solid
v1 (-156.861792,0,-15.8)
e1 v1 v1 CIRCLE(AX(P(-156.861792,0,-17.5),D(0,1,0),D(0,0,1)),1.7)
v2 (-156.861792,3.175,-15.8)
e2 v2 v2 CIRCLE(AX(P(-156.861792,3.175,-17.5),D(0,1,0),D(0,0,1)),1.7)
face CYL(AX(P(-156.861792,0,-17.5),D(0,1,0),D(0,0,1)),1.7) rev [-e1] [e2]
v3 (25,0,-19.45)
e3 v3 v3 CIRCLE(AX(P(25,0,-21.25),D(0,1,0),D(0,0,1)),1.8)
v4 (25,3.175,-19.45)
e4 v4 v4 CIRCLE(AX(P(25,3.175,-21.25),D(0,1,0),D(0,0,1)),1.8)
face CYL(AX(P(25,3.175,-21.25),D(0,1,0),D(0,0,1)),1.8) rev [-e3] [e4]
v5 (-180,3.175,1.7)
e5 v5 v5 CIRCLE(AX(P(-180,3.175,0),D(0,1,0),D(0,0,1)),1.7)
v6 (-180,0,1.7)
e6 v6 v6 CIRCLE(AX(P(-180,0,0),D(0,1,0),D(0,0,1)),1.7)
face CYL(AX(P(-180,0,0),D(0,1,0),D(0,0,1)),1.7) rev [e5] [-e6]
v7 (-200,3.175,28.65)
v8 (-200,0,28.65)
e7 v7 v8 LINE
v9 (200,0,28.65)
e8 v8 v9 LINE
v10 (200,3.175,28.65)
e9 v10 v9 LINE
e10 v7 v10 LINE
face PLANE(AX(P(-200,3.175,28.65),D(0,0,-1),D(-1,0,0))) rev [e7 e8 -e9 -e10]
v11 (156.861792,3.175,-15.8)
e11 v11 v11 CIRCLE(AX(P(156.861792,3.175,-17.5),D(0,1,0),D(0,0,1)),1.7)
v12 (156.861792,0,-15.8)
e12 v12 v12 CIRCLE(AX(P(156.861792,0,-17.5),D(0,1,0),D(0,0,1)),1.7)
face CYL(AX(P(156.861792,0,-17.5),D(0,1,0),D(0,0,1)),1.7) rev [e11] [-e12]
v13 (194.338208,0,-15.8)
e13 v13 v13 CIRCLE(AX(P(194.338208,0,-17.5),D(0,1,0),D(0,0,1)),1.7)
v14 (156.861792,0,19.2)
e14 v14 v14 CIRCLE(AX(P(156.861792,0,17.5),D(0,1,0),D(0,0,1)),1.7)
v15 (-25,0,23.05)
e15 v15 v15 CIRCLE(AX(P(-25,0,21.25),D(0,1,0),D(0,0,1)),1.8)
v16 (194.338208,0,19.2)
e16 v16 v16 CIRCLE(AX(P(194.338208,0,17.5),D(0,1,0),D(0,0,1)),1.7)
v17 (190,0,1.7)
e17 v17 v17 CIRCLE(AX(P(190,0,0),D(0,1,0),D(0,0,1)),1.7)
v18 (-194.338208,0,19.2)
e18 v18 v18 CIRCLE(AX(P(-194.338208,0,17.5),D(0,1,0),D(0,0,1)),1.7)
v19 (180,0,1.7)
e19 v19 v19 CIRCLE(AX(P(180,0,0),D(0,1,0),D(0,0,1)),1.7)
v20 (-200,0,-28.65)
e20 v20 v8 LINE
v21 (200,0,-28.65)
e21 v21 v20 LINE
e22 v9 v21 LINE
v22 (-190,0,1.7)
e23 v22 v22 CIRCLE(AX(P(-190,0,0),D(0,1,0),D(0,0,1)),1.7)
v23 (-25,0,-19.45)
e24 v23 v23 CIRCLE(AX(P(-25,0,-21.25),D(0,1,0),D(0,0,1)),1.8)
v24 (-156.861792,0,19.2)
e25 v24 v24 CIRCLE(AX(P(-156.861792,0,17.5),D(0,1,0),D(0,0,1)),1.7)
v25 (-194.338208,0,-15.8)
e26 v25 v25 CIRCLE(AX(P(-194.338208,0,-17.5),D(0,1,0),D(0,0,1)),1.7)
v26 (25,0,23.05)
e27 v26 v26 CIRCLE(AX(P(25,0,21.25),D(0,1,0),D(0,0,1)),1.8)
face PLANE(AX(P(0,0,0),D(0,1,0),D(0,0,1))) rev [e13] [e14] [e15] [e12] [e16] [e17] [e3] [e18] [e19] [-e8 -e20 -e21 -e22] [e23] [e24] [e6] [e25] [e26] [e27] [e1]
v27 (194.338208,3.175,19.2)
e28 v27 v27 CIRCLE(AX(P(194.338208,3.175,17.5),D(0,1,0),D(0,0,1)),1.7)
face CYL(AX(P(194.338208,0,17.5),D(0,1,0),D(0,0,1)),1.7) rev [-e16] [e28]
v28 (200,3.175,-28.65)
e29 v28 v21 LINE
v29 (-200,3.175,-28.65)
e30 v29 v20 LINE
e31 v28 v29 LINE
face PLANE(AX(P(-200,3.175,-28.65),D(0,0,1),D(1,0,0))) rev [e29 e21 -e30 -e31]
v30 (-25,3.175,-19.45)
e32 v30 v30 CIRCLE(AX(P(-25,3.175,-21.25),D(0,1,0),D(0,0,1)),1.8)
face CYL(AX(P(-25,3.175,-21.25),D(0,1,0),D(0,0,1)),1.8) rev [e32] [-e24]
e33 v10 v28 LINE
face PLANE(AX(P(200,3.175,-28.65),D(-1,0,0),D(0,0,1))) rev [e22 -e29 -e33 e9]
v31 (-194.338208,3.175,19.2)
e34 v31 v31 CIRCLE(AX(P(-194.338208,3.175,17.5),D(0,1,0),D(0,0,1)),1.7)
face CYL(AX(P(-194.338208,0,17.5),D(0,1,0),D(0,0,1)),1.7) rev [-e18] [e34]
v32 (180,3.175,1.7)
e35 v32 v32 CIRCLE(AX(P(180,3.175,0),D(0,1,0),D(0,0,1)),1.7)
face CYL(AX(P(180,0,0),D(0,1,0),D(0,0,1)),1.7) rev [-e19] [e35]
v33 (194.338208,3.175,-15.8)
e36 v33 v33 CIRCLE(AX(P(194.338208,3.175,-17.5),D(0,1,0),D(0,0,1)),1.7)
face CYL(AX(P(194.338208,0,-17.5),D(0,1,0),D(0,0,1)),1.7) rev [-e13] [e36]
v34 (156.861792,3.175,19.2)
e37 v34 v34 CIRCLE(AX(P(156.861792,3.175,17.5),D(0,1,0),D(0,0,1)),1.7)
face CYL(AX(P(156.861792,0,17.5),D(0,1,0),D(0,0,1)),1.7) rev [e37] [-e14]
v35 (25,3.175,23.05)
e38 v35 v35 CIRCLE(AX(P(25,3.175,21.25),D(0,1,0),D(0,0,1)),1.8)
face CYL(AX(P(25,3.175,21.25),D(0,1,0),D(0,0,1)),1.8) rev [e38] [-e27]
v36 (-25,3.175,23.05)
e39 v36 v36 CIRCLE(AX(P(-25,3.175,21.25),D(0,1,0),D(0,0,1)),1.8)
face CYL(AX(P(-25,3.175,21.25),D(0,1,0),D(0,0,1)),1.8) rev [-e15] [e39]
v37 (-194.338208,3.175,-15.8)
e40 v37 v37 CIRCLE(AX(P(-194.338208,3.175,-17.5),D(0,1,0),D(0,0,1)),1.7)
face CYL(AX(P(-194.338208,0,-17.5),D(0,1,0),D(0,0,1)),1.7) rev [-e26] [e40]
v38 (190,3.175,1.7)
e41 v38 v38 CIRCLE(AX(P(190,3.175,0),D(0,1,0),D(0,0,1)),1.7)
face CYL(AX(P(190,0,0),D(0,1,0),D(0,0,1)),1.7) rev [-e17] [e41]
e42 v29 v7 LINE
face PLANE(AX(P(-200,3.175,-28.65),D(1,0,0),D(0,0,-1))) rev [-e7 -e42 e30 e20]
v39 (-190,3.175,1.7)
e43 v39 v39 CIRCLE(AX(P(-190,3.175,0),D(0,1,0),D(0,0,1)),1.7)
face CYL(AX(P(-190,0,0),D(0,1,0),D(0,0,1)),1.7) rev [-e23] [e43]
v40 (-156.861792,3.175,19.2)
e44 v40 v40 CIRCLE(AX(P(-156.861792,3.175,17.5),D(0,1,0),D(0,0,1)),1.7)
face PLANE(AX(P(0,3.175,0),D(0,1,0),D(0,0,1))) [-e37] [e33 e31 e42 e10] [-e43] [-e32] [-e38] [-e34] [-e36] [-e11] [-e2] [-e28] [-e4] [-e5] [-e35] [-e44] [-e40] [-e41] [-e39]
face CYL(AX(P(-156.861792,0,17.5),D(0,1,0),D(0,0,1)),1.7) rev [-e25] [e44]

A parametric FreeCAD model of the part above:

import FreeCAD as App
import Part
import Sketcher

V = App.Vector

doc = App.newDocument("Part")
params = doc.addObject("Spreadsheet::Sheet", "Params")
for row, (alias, value) in enumerate([
    ("sketch1_width", "400 mm"),
    ("sketch1_height", "57.3 mm"),
    ("pad1_length", "3.175 mm"),
    ("sketch2_diameter", "3.4 mm"),
    ("sketch3_diameter", "3.6 mm"),
    ("hole_diameter", "3.6 mm"),
    ("hole_depth", "3.918451 mm"),
], start=1):
    params.set(f"A{row}", alias)
    params.set(f"B{row}", "=" + value)
    params.setAlias(f"B{row}", alias)

body = doc.addObject("PartDesign::Body", "Body")

# Sketch on XZ plane
sketch1 = doc.addObject("Sketcher::SketchObject", "Sketch")
body.addObject(sketch1)
sketch1.AttachmentSupport = (doc.XZ_Plane, [""])
sketch1.MapMode = "FlatFace"
sketch1.addGeometry([
    Part.LineSegment(V(-200, -29, 0), V(-200, 29, 0)),
    Part.LineSegment(V(-200, 29, 0), V(200, 29, 0)),
    Part.LineSegment(V(200, 29, 0), V(200, -29, 0)),
    Part.LineSegment(V(200, -29, 0), V(-200, -29, 0)),
], False)
sketch1.addConstraint([
    Sketcher.Constraint("Coincident", 0, 2, 1, 1),
    Sketcher.Constraint("Coincident", 1, 2, 2, 1),
    Sketcher.Constraint("Coincident", 2, 2, 3, 1),
    Sketcher.Constraint("Coincident", 3, 2, 0, 1),
    Sketcher.Constraint("Vertical", 0),
    Sketcher.Constraint("Horizontal", 1),
    Sketcher.Constraint("Vertical", 2),
    Sketcher.Constraint("Horizontal", 3),
    Sketcher.Constraint("Symmetric", 0, 2, 2, 2, -1, 1),
    Sketcher.Constraint("DistanceX", 1, 1, 1, 2, 400.0),
    Sketcher.Constraint("DistanceY", 0, 1, 0, 2, 57.3),
])
sketch1.setExpression("Constraints[9]", "Params.sketch1_width")
sketch1.setExpression("Constraints[10]", "Params.sketch1_height")
pad1 = doc.addObject("PartDesign::Pad", "Pad")
body.addObject(pad1)
pad1.Profile = sketch1
pad1.setExpression("Length", "Params.pad1_length")
pad1.Reversed = True

# Sketch on XZ plane
sketch2 = doc.addObject("Sketcher::SketchObject", "Sketch001")
body.addObject(sketch2)
sketch2.AttachmentSupport = (doc.XZ_Plane, [""])
sketch2.MapMode = "FlatFace"
sketch2.AttachmentOffset = App.Placement(V(0, 0, -3.175), App.Rotation())
sketch2.addGeometry([
    Part.Circle(V(-194.3, 17.5, 0), V(0, 0, 1), 1.7),  # 0
    Part.Circle(V(-194.3, -17.5, 0), V(0, 0, 1), 1.7),  # 1
    Part.Circle(V(-190, 0, 0), V(0, 0, 1), 1.7),  # 2
    Part.Circle(V(-180, 0, 0), V(0, 0, 1), 1.7),  # 3
    Part.Circle(V(-156.9, 17.5, 0), V(0, 0, 1), 1.7),  # 4
    Part.Circle(V(-156.9, -17.5, 0), V(0, 0, 1), 1.7),  # 5
    Part.Circle(V(156.9, -17.5, 0), V(0, 0, 1), 1.7),  # 6
    Part.Circle(V(156.9, 17.5, 0), V(0, 0, 1), 1.7),  # 7
    Part.Circle(V(194.3, 17.5, 0), V(0, 0, 1), 1.7),  # 8
    Part.Circle(V(180, 0, 0), V(0, 0, 1), 1.7),  # 9
    Part.Circle(V(190, 0, 0), V(0, 0, 1), 1.7),  # 10
    Part.Circle(V(194.3, -17.5, 0), V(0, 0, 1), 1.7),  # 11
], False)
sketch2.addConstraint([
    Sketcher.Constraint("Equal", 0, 1),
    Sketcher.Constraint("Equal", 1, 2),
    Sketcher.Constraint("Equal", 2, 3),
    Sketcher.Constraint("Equal", 3, 4),
    Sketcher.Constraint("Equal", 4, 5),
    Sketcher.Constraint("Equal", 5, 6),
    Sketcher.Constraint("Equal", 6, 7),
    Sketcher.Constraint("Equal", 7, 8),
    Sketcher.Constraint("Equal", 8, 9),
    Sketcher.Constraint("Equal", 9, 10),
    Sketcher.Constraint("Equal", 10, 11),
    Sketcher.Constraint("Symmetric", 4, 3, 6, 3, -1, 1),
    Sketcher.Constraint("Symmetric", 5, 3, 7, 3, -1, 1),
    Sketcher.Constraint("Symmetric", 1, 3, 8, 3, -1, 1),
    Sketcher.Constraint("Symmetric", 3, 3, 9, 3, -1, 1),
    Sketcher.Constraint("Symmetric", 2, 3, 10, 3, -1, 1),
    Sketcher.Constraint("Symmetric", 0, 3, 11, 3, -1, 1),
    Sketcher.Constraint("Symmetric", 5, 3, 6, 3, -2),
    Sketcher.Constraint("Symmetric", 0, 3, 8, 3, -2),
    Sketcher.Constraint("PointOnObject", 2, 3, -1),
    Sketcher.Constraint("PointOnObject", 3, 3, -1),
    Sketcher.Constraint("Horizontal", 0, 3, 4, 3),
    Sketcher.Constraint("Diameter", 0, 3.4),
    Sketcher.Constraint("DistanceX", 2, 3, -1, 1, 190.0),
    Sketcher.Constraint("DistanceX", 3, 3, -1, 1, 180.0),
    Sketcher.Constraint("DistanceY", 1, 3, 0, 3, 35.0),
    Sketcher.Constraint("DistanceX", 1, 3, 6, 3, 351.2),
    Sketcher.Constraint("DistanceX", 0, 3, -1, 1, 194.338208),
])
sketch2.setExpression("Constraints[22]", "Params.sketch2_diameter")
pocket1 = doc.addObject("PartDesign::Pocket", "Pocket")
body.addObject(pocket1)
pocket1.Profile = sketch2
pocket1.Type = "ThroughAll"
pocket1.Reversed = True

# Sketch on XZ plane
sketch3 = doc.addObject("Sketcher::SketchObject", "Sketch002")
body.addObject(sketch3)
sketch3.AttachmentSupport = (doc.XZ_Plane, [""])
sketch3.MapMode = "FlatFace"
sketch3.AttachmentOffset = App.Placement(V(0, 0, -3.175), App.Rotation())
sketch3.addGeometry([
    Part.Circle(V(25, 21.2, 0), V(0, 0, 1), 1.8),
    Part.Circle(V(-25, -21.2, 0), V(0, 0, 1), 1.8),
    Part.Circle(V(-25, 21.2, 0), V(0, 0, 1), 1.8),
    Part.Circle(V(25, -21.2, 0), V(0, 0, 1), 1.8),
], False)
sketch3.addConstraint([
    Sketcher.Constraint("Equal", 0, 1),
    Sketcher.Constraint("Equal", 1, 2),
    Sketcher.Constraint("Equal", 2, 3),
    Sketcher.Constraint("Symmetric", 0, 3, 1, 3, -1, 1),
    Sketcher.Constraint("Symmetric", 2, 3, 3, 3, -1, 1),
    Sketcher.Constraint("Symmetric", 0, 3, 2, 3, -2),
    Sketcher.Constraint("Diameter", 0, 3.6),
    Sketcher.Constraint("DistanceX", -1, 1, 0, 3, 25.0),
    Sketcher.Constraint("DistanceY", 1, 3, 0, 3, 42.5),
])
sketch3.setExpression("Constraints[6]", "Params.sketch3_diameter")
doc.recompute()
hole = doc.addObject("PartDesign::Hole", "Hole")
body.addObject(hole)
hole.Profile = sketch3
hole.ThreadType = "None"
hole.setExpression("Diameter", "Params.hole_diameter")
hole.DepthType = "Dimension"
hole.setExpression("Depth", "Params.hole_depth")
hole.DrillPoint = "Angled"
hole.DrillPointAngle = 118
hole.Reversed = True

doc.recompute()
